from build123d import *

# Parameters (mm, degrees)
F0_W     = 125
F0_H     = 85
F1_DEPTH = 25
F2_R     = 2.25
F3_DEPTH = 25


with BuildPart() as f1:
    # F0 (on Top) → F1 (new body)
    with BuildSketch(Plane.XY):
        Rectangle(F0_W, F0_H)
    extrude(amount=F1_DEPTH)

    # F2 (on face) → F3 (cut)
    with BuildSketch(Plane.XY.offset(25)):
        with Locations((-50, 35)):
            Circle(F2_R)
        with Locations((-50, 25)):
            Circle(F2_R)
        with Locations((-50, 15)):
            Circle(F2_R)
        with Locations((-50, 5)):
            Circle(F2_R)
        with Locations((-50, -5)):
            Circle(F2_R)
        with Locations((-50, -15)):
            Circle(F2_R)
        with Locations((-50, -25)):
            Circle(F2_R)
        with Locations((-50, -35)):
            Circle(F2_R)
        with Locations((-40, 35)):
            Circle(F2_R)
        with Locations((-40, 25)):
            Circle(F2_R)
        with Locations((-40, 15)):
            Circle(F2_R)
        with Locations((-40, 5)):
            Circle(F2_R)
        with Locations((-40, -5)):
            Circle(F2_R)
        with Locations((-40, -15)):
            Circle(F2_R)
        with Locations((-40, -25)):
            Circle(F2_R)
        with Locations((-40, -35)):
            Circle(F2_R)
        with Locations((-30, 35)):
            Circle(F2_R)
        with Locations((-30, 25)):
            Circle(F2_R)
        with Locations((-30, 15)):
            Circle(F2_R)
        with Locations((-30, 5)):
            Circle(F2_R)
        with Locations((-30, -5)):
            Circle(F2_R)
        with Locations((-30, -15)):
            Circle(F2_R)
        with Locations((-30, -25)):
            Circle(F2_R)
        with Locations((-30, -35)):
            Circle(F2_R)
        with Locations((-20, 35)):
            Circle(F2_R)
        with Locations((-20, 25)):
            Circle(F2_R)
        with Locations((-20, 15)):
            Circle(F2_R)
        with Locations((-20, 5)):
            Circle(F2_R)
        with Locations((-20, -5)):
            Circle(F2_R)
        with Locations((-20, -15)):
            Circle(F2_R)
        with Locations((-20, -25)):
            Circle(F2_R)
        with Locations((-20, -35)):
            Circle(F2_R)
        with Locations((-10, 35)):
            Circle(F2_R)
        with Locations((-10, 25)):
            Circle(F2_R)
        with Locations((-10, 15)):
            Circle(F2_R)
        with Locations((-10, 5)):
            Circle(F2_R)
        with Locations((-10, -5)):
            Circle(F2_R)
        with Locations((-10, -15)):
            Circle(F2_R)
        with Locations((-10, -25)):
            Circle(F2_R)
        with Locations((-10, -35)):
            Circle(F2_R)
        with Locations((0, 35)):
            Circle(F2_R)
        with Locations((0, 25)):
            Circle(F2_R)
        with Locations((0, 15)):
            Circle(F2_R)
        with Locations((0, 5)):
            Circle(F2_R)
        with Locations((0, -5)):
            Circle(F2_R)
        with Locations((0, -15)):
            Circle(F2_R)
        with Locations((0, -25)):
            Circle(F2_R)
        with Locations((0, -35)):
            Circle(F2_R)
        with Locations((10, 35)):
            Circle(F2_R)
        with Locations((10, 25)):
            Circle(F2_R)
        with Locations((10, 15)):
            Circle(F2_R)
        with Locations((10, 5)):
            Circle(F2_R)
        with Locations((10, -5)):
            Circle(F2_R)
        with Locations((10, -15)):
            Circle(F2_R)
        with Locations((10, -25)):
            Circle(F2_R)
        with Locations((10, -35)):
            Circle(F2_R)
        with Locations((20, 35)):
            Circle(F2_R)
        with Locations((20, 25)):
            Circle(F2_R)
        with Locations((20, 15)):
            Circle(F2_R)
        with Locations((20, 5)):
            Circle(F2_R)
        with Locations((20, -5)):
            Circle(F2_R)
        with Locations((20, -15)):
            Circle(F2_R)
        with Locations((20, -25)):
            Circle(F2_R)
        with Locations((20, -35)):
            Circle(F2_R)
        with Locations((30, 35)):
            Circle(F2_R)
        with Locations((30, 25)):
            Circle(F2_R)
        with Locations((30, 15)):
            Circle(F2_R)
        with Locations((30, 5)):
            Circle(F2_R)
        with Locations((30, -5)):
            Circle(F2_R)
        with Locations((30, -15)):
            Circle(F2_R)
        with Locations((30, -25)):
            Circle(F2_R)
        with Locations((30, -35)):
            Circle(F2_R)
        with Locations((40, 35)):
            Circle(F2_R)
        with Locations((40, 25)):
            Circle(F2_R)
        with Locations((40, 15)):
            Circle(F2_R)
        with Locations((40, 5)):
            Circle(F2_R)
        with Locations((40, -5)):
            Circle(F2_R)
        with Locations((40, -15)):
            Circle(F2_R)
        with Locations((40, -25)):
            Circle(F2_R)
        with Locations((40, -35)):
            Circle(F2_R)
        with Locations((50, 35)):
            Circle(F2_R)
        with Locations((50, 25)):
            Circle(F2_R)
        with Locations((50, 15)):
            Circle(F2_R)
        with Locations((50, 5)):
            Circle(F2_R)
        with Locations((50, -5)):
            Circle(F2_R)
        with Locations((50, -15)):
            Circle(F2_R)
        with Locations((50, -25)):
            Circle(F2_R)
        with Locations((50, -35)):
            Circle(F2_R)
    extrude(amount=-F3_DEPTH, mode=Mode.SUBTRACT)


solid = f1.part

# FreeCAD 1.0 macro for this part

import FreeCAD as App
import Part
import Sketcher
from FreeCAD import Vector
Q = App.Units.Quantity

doc = App.newDocument("Part")
body = doc.addObject("PartDesign::Body", "Body")

# Sketch on XY plane
sketch1 = body.newObject("Sketcher::SketchObject", "Sketch")
sketch1.AttachmentSupport = (doc.getObject("XY_Plane"), [""])
sketch1.MapMode = "FlatFace"
sketch1.addGeometry(Part.LineSegment(Vector(-62.5, 42.5, 0), Vector(-62.5, -42.5, 0)), False)
sketch1.addGeometry(Part.LineSegment(Vector(-62.5, -42.5, 0), Vector(62.5, -42.5, 0)), False)
sketch1.addGeometry(Part.LineSegment(Vector(62.5, -42.5, 0), Vector(62.5, 42.5, 0)), False)
sketch1.addGeometry(Part.LineSegment(Vector(62.5, 42.5, 0), Vector(-62.5, 42.5, 0)), False)
sketch1.addConstraint(Sketcher.Constraint("Coincident", 0, 2, 1, 1))
sketch1.addConstraint(Sketcher.Constraint("Coincident", 1, 2, 2, 1))
sketch1.addConstraint(Sketcher.Constraint("Coincident", 2, 2, 3, 1))
sketch1.addConstraint(Sketcher.Constraint("Coincident", 3, 2, 0, 1))
sketch1.addConstraint(Sketcher.Constraint("Vertical", 0))
sketch1.addConstraint(Sketcher.Constraint("Horizontal", 1))
sketch1.addConstraint(Sketcher.Constraint("Vertical", 2))
sketch1.addConstraint(Sketcher.Constraint("Horizontal", 3))
sketch1.addConstraint(Sketcher.Constraint("Symmetric", 0, 2, 2, 2, -1, 1))
sketch1.addConstraint(Sketcher.Constraint("DistanceX", 1, 1, 1, 2, Q("125 mm")))
sketch1.addConstraint(Sketcher.Constraint("DistanceY", 0, 2, 0, 1, Q("85 mm")))
pad1 = body.newObject("PartDesign::Pad", "Pad")
pad1.Profile = sketch1
pad1.Length = 25

# Sketch on XY plane
sketch2 = body.newObject("Sketcher::SketchObject", "Sketch001")
sketch2.AttachmentSupport = (doc.getObject("XY_Plane"), [""])
sketch2.MapMode = "FlatFace"
sketch2.AttachmentOffset = App.Placement(Vector(0, 0, 25), App.Rotation())
sketch2.addGeometry(Part.Circle(Vector(-50, 35, 0), Vector(0, 0, 1), 2.25), False)
sketch2.addGeometry(Part.Circle(Vector(-50, 25, 0), Vector(0, 0, 1), 2.25), False)
sketch2.addGeometry(Part.Circle(Vector(-50, 15, 0), Vector(0, 0, 1), 2.25), False)
sketch2.addGeometry(Part.Circle(Vector(-50, 5, 0), Vector(0, 0, 1), 2.25), False)
sketch2.addGeometry(Part.Circle(Vector(-50, -5, 0), Vector(0, 0, 1), 2.25), False)
sketch2.addGeometry(Part.Circle(Vector(-50, -15, 0), Vector(0, 0, 1), 2.25), False)
sketch2.addGeometry(Part.Circle(Vector(-50, -25, 0), Vector(0, 0, 1), 2.25), False)
sketch2.addGeometry(Part.Circle(Vector(-50, -35, 0), Vector(0, 0, 1), 2.25), False)
sketch2.addGeometry(Part.Circle(Vector(-40, 35, 0), Vector(0, 0, 1), 2.25), False)
sketch2.addGeometry(Part.Circle(Vector(-40, 25, 0), Vector(0, 0, 1), 2.25), False)
sketch2.addGeometry(Part.Circle(Vector(-40, 15, 0), Vector(0, 0, 1), 2.25), False)
sketch2.addGeometry(Part.Circle(Vector(-40, 5, 0), Vector(0, 0, 1), 2.25), False)
sketch2.addGeometry(Part.Circle(Vector(-40, -5, 0), Vector(0, 0, 1), 2.25), False)
sketch2.addGeometry(Part.Circle(Vector(-40, -15, 0), Vector(0, 0, 1), 2.25), False)
sketch2.addGeometry(Part.Circle(Vector(-40, -25, 0), Vector(0, 0, 1), 2.25), False)
sketch2.addGeometry(Part.Circle(Vector(-40, -35, 0), Vector(0, 0, 1), 2.25), False)
sketch2.addGeometry(Part.Circle(Vector(-30, 35, 0), Vector(0, 0, 1), 2.25), False)
sketch2.addGeometry(Part.Circle(Vector(-30, 25, 0), Vector(0, 0, 1), 2.25), False)
sketch2.addGeometry(Part.Circle(Vector(-30, 15, 0), Vector(0, 0, 1), 2.25), False)
sketch2.addGeometry(Part.Circle(Vector(-30, 5, 0), Vector(0, 0, 1), 2.25), False)
sketch2.addGeometry(Part.Circle(Vector(-30, -5, 0), Vector(0, 0, 1), 2.25), False)
sketch2.addGeometry(Part.Circle(Vector(-30, -15, 0), Vector(0, 0, 1), 2.25), False)
sketch2.addGeometry(Part.Circle(Vector(-30, -25, 0), Vector(0, 0, 1), 2.25), False)
sketch2.addGeometry(Part.Circle(Vector(-30, -35, 0), Vector(0, 0, 1), 2.25), False)
sketch2.addGeometry(Part.Circle(Vector(-20, 35, 0), Vector(0, 0, 1), 2.25), False)
sketch2.addGeometry(Part.Circle(Vector(-20, 25, 0), Vector(0, 0, 1), 2.25), False)
sketch2.addGeometry(Part.Circle(Vector(-20, 15, 0), Vector(0, 0, 1), 2.25), False)
sketch2.addGeometry(Part.Circle(Vector(-20, 5, 0), Vector(0, 0, 1), 2.25), False)
sketch2.addGeometry(Part.Circle(Vector(-20, -5, 0), Vector(0, 0, 1), 2.25), False)
sketch2.addGeometry(Part.Circle(Vector(-20, -15, 0), Vector(0, 0, 1), 2.25), False)
sketch2.addGeometry(Part.Circle(Vector(-20, -25, 0), Vector(0, 0, 1), 2.25), False)
sketch2.addGeometry(Part.Circle(Vector(-20, -35, 0), Vector(0, 0, 1), 2.25), False)
sketch2.addGeometry(Part.Circle(Vector(-10, 35, 0), Vector(0, 0, 1), 2.25), False)
sketch2.addGeometry(Part.Circle(Vector(-10, 25, 0), Vector(0, 0, 1), 2.25), False)
sketch2.addGeometry(Part.Circle(Vector(-10, 15, 0), Vector(0, 0, 1), 2.25), False)
sketch2.addGeometry(Part.Circle(Vector(-10, 5, 0), Vector(0, 0, 1), 2.25), False)
sketch2.addGeometry(Part.Circle(Vector(-10, -5, 0), Vector(0, 0, 1), 2.25), False)
sketch2.addGeometry(Part.Circle(Vector(-10, -15, 0), Vector(0, 0, 1), 2.25), False)
sketch2.addGeometry(Part.Circle(Vector(-10, -25, 0), Vector(0, 0, 1), 2.25), False)
sketch2.addGeometry(Part.Circle(Vector(-10, -35, 0), Vector(0, 0, 1), 2.25), False)
sketch2.addGeometry(Part.Circle(Vector(0, 35, 0), Vector(0, 0, 1), 2.25), False)
sketch2.addGeometry(Part.Circle(Vector(0, 25, 0), Vector(0, 0, 1), 2.25), False)
sketch2.addGeometry(Part.Circle(Vector(0, 15, 0), Vector(0, 0, 1), 2.25), False)
sketch2.addGeometry(Part.Circle(Vector(0, 5, 0), Vector(0, 0, 1), 2.25), False)
sketch2.addGeometry(Part.Circle(Vector(0, -5, 0), Vector(0, 0, 1), 2.25), False)
sketch2.addGeometry(Part.Circle(Vector(0, -15, 0), Vector(0, 0, 1), 2.25), False)
sketch2.addGeometry(Part.Circle(Vector(0, -25, 0), Vector(0, 0, 1), 2.25), False)
sketch2.addGeometry(Part.Circle(Vector(0, -35, 0), Vector(0, 0, 1), 2.25), False)
sketch2.addGeometry(Part.Circle(Vector(10, 35, 0), Vector(0, 0, 1), 2.25), False)
sketch2.addGeometry(Part.Circle(Vector(10, 25, 0), Vector(0, 0, 1), 2.25), False)
sketch2.addGeometry(Part.Circle(Vector(10, 15, 0), Vector(0, 0, 1), 2.25), False)
sketch2.addGeometry(Part.Circle(Vector(10, 5, 0), Vector(0, 0, 1), 2.25), False)
sketch2.addGeometry(Part.Circle(Vector(10, -5, 0), Vector(0, 0, 1), 2.25), False)
sketch2.addGeometry(Part.Circle(Vector(10, -15, 0), Vector(0, 0, 1), 2.25), False)
sketch2.addGeometry(Part.Circle(Vector(10, -25, 0), Vector(0, 0, 1), 2.25), False)
sketch2.addGeometry(Part.Circle(Vector(10, -35, 0), Vector(0, 0, 1), 2.25), False)
sketch2.addGeometry(Part.Circle(Vector(20, 35, 0), Vector(0, 0, 1), 2.25), False)
sketch2.addGeometry(Part.Circle(Vector(20, 25, 0), Vector(0, 0, 1), 2.25), False)
sketch2.addGeometry(Part.Circle(Vector(20, 15, 0), Vector(0, 0, 1), 2.25), False)
sketch2.addGeometry(Part.Circle(Vector(20, 5, 0), Vector(0, 0, 1), 2.25), False)
sketch2.addGeometry(Part.Circle(Vector(20, -5, 0), Vector(0, 0, 1), 2.25), False)
sketch2.addGeometry(Part.Circle(Vector(20, -15, 0), Vector(0, 0, 1), 2.25), False)
sketch2.addGeometry(Part.Circle(Vector(20, -25, 0), Vector(0, 0, 1), 2.25), False)
sketch2.addGeometry(Part.Circle(Vector(20, -35, 0), Vector(0, 0, 1), 2.25), False)
sketch2.addGeometry(Part.Circle(Vector(30, 35, 0), Vector(0, 0, 1), 2.25), False)
sketch2.addGeometry(Part.Circle(Vector(30, 25, 0), Vector(0, 0, 1), 2.25), False)
sketch2.addGeometry(Part.Circle(Vector(30, 15, 0), Vector(0, 0, 1), 2.25), False)
sketch2.addGeometry(Part.Circle(Vector(30, 5, 0), Vector(0, 0, 1), 2.25), False)
sketch2.addGeometry(Part.Circle(Vector(30, -5, 0), Vector(0, 0, 1), 2.25), False)
sketch2.addGeometry(Part.Circle(Vector(30, -15, 0), Vector(0, 0, 1), 2.25), False)
sketch2.addGeometry(Part.Circle(Vector(30, -25, 0), Vector(0, 0, 1), 2.25), False)
sketch2.addGeometry(Part.Circle(Vector(30, -35, 0), Vector(0, 0, 1), 2.25), False)
sketch2.addGeometry(Part.Circle(Vector(40, 35, 0), Vector(0, 0, 1), 2.25), False)
sketch2.addGeometry(Part.Circle(Vector(40, 25, 0), Vector(0, 0, 1), 2.25), False)
sketch2.addGeometry(Part.Circle(Vector(40, 15, 0), Vector(0, 0, 1), 2.25), False)
sketch2.addGeometry(Part.Circle(Vector(40, 5, 0), Vector(0, 0, 1), 2.25), False)
sketch2.addGeometry(Part.Circle(Vector(40, -5, 0), Vector(0, 0, 1), 2.25), False)
sketch2.addGeometry(Part.Circle(Vector(40, -15, 0), Vector(0, 0, 1), 2.25), False)
sketch2.addGeometry(Part.Circle(Vector(40, -25, 0), Vector(0, 0, 1), 2.25), False)
sketch2.addGeometry(Part.Circle(Vector(40, -35, 0), Vector(0, 0, 1), 2.25), False)
sketch2.addGeometry(Part.Circle(Vector(50, 35, 0), Vector(0, 0, 1), 2.25), False)
sketch2.addGeometry(Part.Circle(Vector(50, 25, 0), Vector(0, 0, 1), 2.25), False)
sketch2.addGeometry(Part.Circle(Vector(50, 15, 0), Vector(0, 0, 1), 2.25), False)
sketch2.addGeometry(Part.Circle(Vector(50, 5, 0), Vector(0, 0, 1), 2.25), False)
sketch2.addGeometry(Part.Circle(Vector(50, -5, 0), Vector(0, 0, 1), 2.25), False)
sketch2.addGeometry(Part.Circle(Vector(50, -15, 0), Vector(0, 0, 1), 2.25), False)
sketch2.addGeometry(Part.Circle(Vector(50, -25, 0), Vector(0, 0, 1), 2.25), False)
sketch2.addGeometry(Part.Circle(Vector(50, -35, 0), Vector(0, 0, 1), 2.25), False)
sketch2.addConstraint(Sketcher.Constraint("Equal", 0, 1))
sketch2.addConstraint(Sketcher.Constraint("Equal", 1, 2))
sketch2.addConstraint(Sketcher.Constraint("Equal", 2, 3))
sketch2.addConstraint(Sketcher.Constraint("Equal", 3, 4))
sketch2.addConstraint(Sketcher.Constraint("Equal", 4, 5))
sketch2.addConstraint(Sketcher.Constraint("Equal", 5, 6))
sketch2.addConstraint(Sketcher.Constraint("Equal", 6, 7))
sketch2.addConstraint(Sketcher.Constraint("Equal", 7, 8))
sketch2.addConstraint(Sketcher.Constraint("Equal", 8, 9))
sketch2.addConstraint(Sketcher.Constraint("Equal", 9, 10))
sketch2.addConstraint(Sketcher.Constraint("Equal", 10, 11))
sketch2.addConstraint(Sketcher.Constraint("Equal", 11, 12))
sketch2.addConstraint(Sketcher.Constraint("Equal", 12, 13))
sketch2.addConstraint(Sketcher.Constraint("Equal", 13, 14))
sketch2.addConstraint(Sketcher.Constraint("Equal", 14, 15))
sketch2.addConstraint(Sketcher.Constraint("Equal", 15, 16))
sketch2.addConstraint(Sketcher.Constraint("Equal", 16, 17))
sketch2.addConstraint(Sketcher.Constraint("Equal", 17, 18))
sketch2.addConstraint(Sketcher.Constraint("Equal", 18, 19))
sketch2.addConstraint(Sketcher.Constraint("Equal", 19, 20))
sketch2.addConstraint(Sketcher.Constraint("Equal", 20, 21))
sketch2.addConstraint(Sketcher.Constraint("Equal", 21, 22))
sketch2.addConstraint(Sketcher.Constraint("Equal", 22, 23))
sketch2.addConstraint(Sketcher.Constraint("Equal", 23, 24))
sketch2.addConstraint(Sketcher.Constraint("Equal", 24, 25))
sketch2.addConstraint(Sketcher.Constraint("Equal", 25, 26))
sketch2.addConstraint(Sketcher.Constraint("Equal", 26, 27))
sketch2.addConstraint(Sketcher.Constraint("Equal", 27, 28))
sketch2.addConstraint(Sketcher.Constraint("Equal", 28, 29))
sketch2.addConstraint(Sketcher.Constraint("Equal", 29, 30))
sketch2.addConstraint(Sketcher.Constraint("Equal", 30, 31))
sketch2.addConstraint(Sketcher.Constraint("Equal", 31, 32))
sketch2.addConstraint(Sketcher.Constraint("Equal", 32, 33))
sketch2.addConstraint(Sketcher.Constraint("Equal", 33, 34))
sketch2.addConstraint(Sketcher.Constraint("Equal", 34, 35))
sketch2.addConstraint(Sketcher.Constraint("Equal", 35, 36))
sketch2.addConstraint(Sketcher.Constraint("Equal", 36, 37))
sketch2.addConstraint(Sketcher.Constraint("Equal", 37, 38))
sketch2.addConstraint(Sketcher.Constraint("Equal", 38, 39))
sketch2.addConstraint(Sketcher.Constraint("Equal", 39, 40))
sketch2.addConstraint(Sketcher.Constraint("Equal", 40, 41))
sketch2.addConstraint(Sketcher.Constraint("Equal", 41, 42))
sketch2.addConstraint(Sketcher.Constraint("Equal", 42, 43))
sketch2.addConstraint(Sketcher.Constraint("Equal", 43, 44))
sketch2.addConstraint(Sketcher.Constraint("Equal", 44, 45))
sketch2.addConstraint(Sketcher.Constraint("Equal", 45, 46))
sketch2.addConstraint(Sketcher.Constraint("Equal", 46, 47))
sketch2.addConstraint(Sketcher.Constraint("Equal", 47, 48))
sketch2.addConstraint(Sketcher.Constraint("Equal", 48, 49))
sketch2.addConstraint(Sketcher.Constraint("Equal", 49, 50))
sketch2.addConstraint(Sketcher.Constraint("Equal", 50, 51))
sketch2.addConstraint(Sketcher.Constraint("Equal", 51, 52))
sketch2.addConstraint(Sketcher.Constraint("Equal", 52, 53))
sketch2.addConstraint(Sketcher.Constraint("Equal", 53, 54))
sketch2.addConstraint(Sketcher.Constraint("Equal", 54, 55))
sketch2.addConstraint(Sketcher.Constraint("Equal", 55, 56))
sketch2.addConstraint(Sketcher.Constraint("Equal", 56, 57))
sketch2.addConstraint(Sketcher.Constraint("Equal", 57, 58))
sketch2.addConstraint(Sketcher.Constraint("Equal", 58, 59))
sketch2.addConstraint(Sketcher.Constraint("Equal", 59, 60))
sketch2.addConstraint(Sketcher.Constraint("Equal", 60, 61))
sketch2.addConstraint(Sketcher.Constraint("Equal", 61, 62))
sketch2.addConstraint(Sketcher.Constraint("Equal", 62, 63))
sketch2.addConstraint(Sketcher.Constraint("Equal", 63, 64))
sketch2.addConstraint(Sketcher.Constraint("Equal", 64, 65))
sketch2.addConstraint(Sketcher.Constraint("Equal", 65, 66))
sketch2.addConstraint(Sketcher.Constraint("Equal", 66, 67))
sketch2.addConstraint(Sketcher.Constraint("Equal", 67, 68))
sketch2.addConstraint(Sketcher.Constraint("Equal", 68, 69))
sketch2.addConstraint(Sketcher.Constraint("Equal", 69, 70))
sketch2.addConstraint(Sketcher.Constraint("Equal", 70, 71))
sketch2.addConstraint(Sketcher.Constraint("Equal", 71, 72))
sketch2.addConstraint(Sketcher.Constraint("Equal", 72, 73))
sketch2.addConstraint(Sketcher.Constraint("Equal", 73, 74))
sketch2.addConstraint(Sketcher.Constraint("Equal", 74, 75))
sketch2.addConstraint(Sketcher.Constraint("Equal", 75, 76))
sketch2.addConstraint(Sketcher.Constraint("Equal", 76, 77))
sketch2.addConstraint(Sketcher.Constraint("Equal", 77, 78))
sketch2.addConstraint(Sketcher.Constraint("Equal", 78, 79))
sketch2.addConstraint(Sketcher.Constraint("Equal", 79, 80))
sketch2.addConstraint(Sketcher.Constraint("Equal", 80, 81))
sketch2.addConstraint(Sketcher.Constraint("Equal", 81, 82))
sketch2.addConstraint(Sketcher.Constraint("Equal", 82, 83))
sketch2.addConstraint(Sketcher.Constraint("Equal", 83, 84))
sketch2.addConstraint(Sketcher.Constraint("Equal", 84, 85))
sketch2.addConstraint(Sketcher.Constraint("Equal", 85, 86))
sketch2.addConstraint(Sketcher.Constraint("Equal", 86, 87))
sketch2.addConstraint(Sketcher.Constraint("Symmetric", 43, 3, 44, 3, -1, 1))
sketch2.addConstraint(Sketcher.Constraint("Symmetric", 42, 3, 45, 3, -1, 1))
sketch2.addConstraint(Sketcher.Constraint("Symmetric", 41, 3, 46, 3, -1, 1))
sketch2.addConstraint(Sketcher.Constraint("Symmetric", 40, 3, 47, 3, -1, 1))
sketch2.addConstraint(Sketcher.Constraint("Symmetric", 39, 3, 48, 3, -1, 1))
sketch2.addConstraint(Sketcher.Constraint("Symmetric", 38, 3, 49, 3, -1, 1))
sketch2.addConstraint(Sketcher.Constraint("Symmetric", 37, 3, 50, 3, -1, 1))
sketch2.addConstraint(Sketcher.Constraint("Symmetric", 36, 3, 51, 3, -1, 1))
sketch2.addConstraint(Sketcher.Constraint("Symmetric", 35, 3, 52, 3, -1, 1))
sketch2.addConstraint(Sketcher.Constraint("Symmetric", 34, 3, 53, 3, -1, 1))
sketch2.addConstraint(Sketcher.Constraint("Symmetric", 33, 3, 54, 3, -1, 1))
sketch2.addConstraint(Sketcher.Constraint("Symmetric", 32, 3, 55, 3, -1, 1))
sketch2.addConstraint(Sketcher.Constraint("Symmetric", 31, 3, 56, 3, -1, 1))
sketch2.addConstraint(Sketcher.Constraint("Symmetric", 30, 3, 57, 3, -1, 1))
sketch2.addConstraint(Sketcher.Constraint("Symmetric", 29, 3, 58, 3, -1, 1))
sketch2.addConstraint(Sketcher.Constraint("Symmetric", 28, 3, 59, 3, -1, 1))
sketch2.addConstraint(Sketcher.Constraint("Symmetric", 27, 3, 60, 3, -1, 1))
sketch2.addConstraint(Sketcher.Constraint("Symmetric", 26, 3, 61, 3, -1, 1))
sketch2.addConstraint(Sketcher.Constraint("Symmetric", 25, 3, 62, 3, -1, 1))
sketch2.addConstraint(Sketcher.Constraint("Symmetric", 24, 3, 63, 3, -1, 1))
sketch2.addConstraint(Sketcher.Constraint("Symmetric", 23, 3, 64, 3, -1, 1))
sketch2.addConstraint(Sketcher.Constraint("Symmetric", 22, 3, 65, 3, -1, 1))
sketch2.addConstraint(Sketcher.Constraint("Symmetric", 21, 3, 66, 3, -1, 1))
sketch2.addConstraint(Sketcher.Constraint("Symmetric", 20, 3, 67, 3, -1, 1))
sketch2.addConstraint(Sketcher.Constraint("Symmetric", 19, 3, 68, 3, -1, 1))
sketch2.addConstraint(Sketcher.Constraint("Symmetric", 18, 3, 69, 3, -1, 1))
sketch2.addConstraint(Sketcher.Constraint("Symmetric", 17, 3, 70, 3, -1, 1))
sketch2.addConstraint(Sketcher.Constraint("Symmetric", 16, 3, 71, 3, -1, 1))
sketch2.addConstraint(Sketcher.Constraint("Symmetric", 15, 3, 72, 3, -1, 1))
sketch2.addConstraint(Sketcher.Constraint("Symmetric", 14, 3, 73, 3, -1, 1))
sketch2.addConstraint(Sketcher.Constraint("Symmetric", 13, 3, 74, 3, -1, 1))
sketch2.addConstraint(Sketcher.Constraint("Symmetric", 12, 3, 75, 3, -1, 1))
sketch2.addConstraint(Sketcher.Constraint("Symmetric", 11, 3, 76, 3, -1, 1))
sketch2.addConstraint(Sketcher.Constraint("Symmetric", 10, 3, 77, 3, -1, 1))
sketch2.addConstraint(Sketcher.Constraint("Symmetric", 9, 3, 78, 3, -1, 1))
sketch2.addConstraint(Sketcher.Constraint("Symmetric", 8, 3, 79, 3, -1, 1))
sketch2.addConstraint(Sketcher.Constraint("Symmetric", 7, 3, 80, 3, -1, 1))
sketch2.addConstraint(Sketcher.Constraint("Symmetric", 6, 3, 81, 3, -1, 1))
sketch2.addConstraint(Sketcher.Constraint("Symmetric", 5, 3, 82, 3, -1, 1))
sketch2.addConstraint(Sketcher.Constraint("Symmetric", 4, 3, 83, 3, -1, 1))
sketch2.addConstraint(Sketcher.Constraint("Symmetric", 3, 3, 84, 3, -1, 1))
sketch2.addConstraint(Sketcher.Constraint("Symmetric", 2, 3, 85, 3, -1, 1))
sketch2.addConstraint(Sketcher.Constraint("Symmetric", 1, 3, 86, 3, -1, 1))
sketch2.addConstraint(Sketcher.Constraint("Symmetric", 0, 3, 87, 3, -1, 1))
sketch2.addConstraint(Sketcher.Constraint("Symmetric", 32, 3, 48, 3, -2))
sketch2.addConstraint(Sketcher.Constraint("Symmetric", 33, 3, 49, 3, -2))
sketch2.addConstraint(Sketcher.Constraint("Symmetric", 34, 3, 50, 3, -2))
sketch2.addConstraint(Sketcher.Constraint("Symmetric", 35, 3, 51, 3, -2))
sketch2.addConstraint(Sketcher.Constraint("Symmetric", 24, 3, 56, 3, -2))
sketch2.addConstraint(Sketcher.Constraint("Symmetric", 25, 3, 57, 3, -2))
sketch2.addConstraint(Sketcher.Constraint("Symmetric", 26, 3, 58, 3, -2))
sketch2.addConstraint(Sketcher.Constraint("Symmetric", 27, 3, 59, 3, -2))
sketch2.addConstraint(Sketcher.Constraint("Symmetric", 16, 3, 64, 3, -2))
sketch2.addConstraint(Sketcher.Constraint("Symmetric", 17, 3, 65, 3, -2))
sketch2.addConstraint(Sketcher.Constraint("Symmetric", 18, 3, 66, 3, -2))
sketch2.addConstraint(Sketcher.Constraint("Symmetric", 19, 3, 67, 3, -2))
sketch2.addConstraint(Sketcher.Constraint("Symmetric", 8, 3, 72, 3, -2))
sketch2.addConstraint(Sketcher.Constraint("Symmetric", 9, 3, 73, 3, -2))
sketch2.addConstraint(Sketcher.Constraint("Symmetric", 10, 3, 74, 3, -2))
sketch2.addConstraint(Sketcher.Constraint("Symmetric", 11, 3, 75, 3, -2))
sketch2.addConstraint(Sketcher.Constraint("Symmetric", 0, 3, 80, 3, -2))
sketch2.addConstraint(Sketcher.Constraint("Symmetric", 1, 3, 81, 3, -2))
sketch2.addConstraint(Sketcher.Constraint("Symmetric", 2, 3, 82, 3, -2))
sketch2.addConstraint(Sketcher.Constraint("Symmetric", 3, 3, 83, 3, -2))
sketch2.addConstraint(Sketcher.Constraint("PointOnObject", 40, 3, -2))
sketch2.addConstraint(Sketcher.Constraint("PointOnObject", 41, 3, -2))
sketch2.addConstraint(Sketcher.Constraint("PointOnObject", 42, 3, -2))
sketch2.addConstraint(Sketcher.Constraint("PointOnObject", 43, 3, -2))
sketch2.addConstraint(Sketcher.Constraint("Horizontal", 0, 3, 8, 3))
sketch2.addConstraint(Sketcher.Constraint("Horizontal", 1, 3, 9, 3))
sketch2.addConstraint(Sketcher.Constraint("Horizontal", 2, 3, 10, 3))
sketch2.addConstraint(Sketcher.Constraint("Horizontal", 3, 3, 11, 3))
sketch2.addConstraint(Sketcher.Constraint("Horizontal", 8, 3, 16, 3))
sketch2.addConstraint(Sketcher.Constraint("Horizontal", 9, 3, 17, 3))
sketch2.addConstraint(Sketcher.Constraint("Horizontal", 10, 3, 18, 3))
sketch2.addConstraint(Sketcher.Constraint("Horizontal", 11, 3, 19, 3))
sketch2.addConstraint(Sketcher.Constraint("Horizontal", 16, 3, 24, 3))
sketch2.addConstraint(Sketcher.Constraint("Horizontal", 17, 3, 25, 3))
sketch2.addConstraint(Sketcher.Constraint("Horizontal", 18, 3, 26, 3))
sketch2.addConstraint(Sketcher.Constraint("Horizontal", 19, 3, 27, 3))
sketch2.addConstraint(Sketcher.Constraint("Horizontal", 24, 3, 32, 3))
sketch2.addConstraint(Sketcher.Constraint("Horizontal", 25, 3, 33, 3))
sketch2.addConstraint(Sketcher.Constraint("Horizontal", 26, 3, 34, 3))
sketch2.addConstraint(Sketcher.Constraint("Horizontal", 27, 3, 35, 3))
sketch2.addConstraint(Sketcher.Constraint("Horizontal", 32, 3, 40, 3))
sketch2.addConstraint(Sketcher.Constraint("Horizontal", 33, 3, 41, 3))
sketch2.addConstraint(Sketcher.Constraint("Horizontal", 34, 3, 42, 3))
sketch2.addConstraint(Sketcher.Constraint("Horizontal", 35, 3, 43, 3))
sketch2.addConstraint(Sketcher.Constraint("Vertical", 0, 3, 1, 3))
sketch2.addConstraint(Sketcher.Constraint("Vertical", 1, 3, 2, 3))
sketch2.addConstraint(Sketcher.Constraint("Vertical", 2, 3, 3, 3))
sketch2.addConstraint(Sketcher.Constraint("Vertical", 8, 3, 9, 3))
sketch2.addConstraint(Sketcher.Constraint("Vertical", 9, 3, 10, 3))
sketch2.addConstraint(Sketcher.Constraint("Vertical", 10, 3, 11, 3))
sketch2.addConstraint(Sketcher.Constraint("Vertical", 16, 3, 17, 3))
sketch2.addConstraint(Sketcher.Constraint("Vertical", 17, 3, 18, 3))
sketch2.addConstraint(Sketcher.Constraint("Vertical", 18, 3, 19, 3))
sketch2.addConstraint(Sketcher.Constraint("Vertical", 24, 3, 25, 3))
sketch2.addConstraint(Sketcher.Constraint("Vertical", 25, 3, 26, 3))
sketch2.addConstraint(Sketcher.Constraint("Vertical", 26, 3, 27, 3))
sketch2.addConstraint(Sketcher.Constraint("Vertical", 32, 3, 33, 3))
sketch2.addConstraint(Sketcher.Constraint("Vertical", 33, 3, 34, 3))
sketch2.addConstraint(Sketcher.Constraint("Vertical", 34, 3, 35, 3))
sketch2.addConstraint(Sketcher.Constraint("Diameter", 0, Q("4.5 mm")))
sketch2.addConstraint(Sketcher.Constraint("DistanceX", 0, 3, -1, 1, Q("50 mm")))
sketch2.addConstraint(Sketcher.Constraint("DistanceY", -1, 1, 0, 3, Q("35 mm")))
sketch2.addConstraint(Sketcher.Constraint("DistanceY", -1, 1, 1, 3, Q("25 mm")))
sketch2.addConstraint(Sketcher.Constraint("DistanceY", -1, 1, 2, 3, Q("15 mm")))
sketch2.addConstraint(Sketcher.Constraint("DistanceY", -1, 1, 3, 3, Q("5 mm")))
sketch2.addConstraint(Sketcher.Constraint("DistanceX", 8, 3, -1, 1, Q("40 mm")))
sketch2.addConstraint(Sketcher.Constraint("DistanceX", 16, 3, -1, 1, Q("30 mm")))
sketch2.addConstraint(Sketcher.Constraint("DistanceX", 24, 3, -1, 1, Q("20 mm")))
sketch2.addConstraint(Sketcher.Constraint("DistanceX", 32, 3, -1, 1, Q("10 mm")))
pocket1 = body.newObject("PartDesign::Pocket", "Pocket")
pocket1.Profile = sketch2
pocket1.Length = 25

doc.recompute()
